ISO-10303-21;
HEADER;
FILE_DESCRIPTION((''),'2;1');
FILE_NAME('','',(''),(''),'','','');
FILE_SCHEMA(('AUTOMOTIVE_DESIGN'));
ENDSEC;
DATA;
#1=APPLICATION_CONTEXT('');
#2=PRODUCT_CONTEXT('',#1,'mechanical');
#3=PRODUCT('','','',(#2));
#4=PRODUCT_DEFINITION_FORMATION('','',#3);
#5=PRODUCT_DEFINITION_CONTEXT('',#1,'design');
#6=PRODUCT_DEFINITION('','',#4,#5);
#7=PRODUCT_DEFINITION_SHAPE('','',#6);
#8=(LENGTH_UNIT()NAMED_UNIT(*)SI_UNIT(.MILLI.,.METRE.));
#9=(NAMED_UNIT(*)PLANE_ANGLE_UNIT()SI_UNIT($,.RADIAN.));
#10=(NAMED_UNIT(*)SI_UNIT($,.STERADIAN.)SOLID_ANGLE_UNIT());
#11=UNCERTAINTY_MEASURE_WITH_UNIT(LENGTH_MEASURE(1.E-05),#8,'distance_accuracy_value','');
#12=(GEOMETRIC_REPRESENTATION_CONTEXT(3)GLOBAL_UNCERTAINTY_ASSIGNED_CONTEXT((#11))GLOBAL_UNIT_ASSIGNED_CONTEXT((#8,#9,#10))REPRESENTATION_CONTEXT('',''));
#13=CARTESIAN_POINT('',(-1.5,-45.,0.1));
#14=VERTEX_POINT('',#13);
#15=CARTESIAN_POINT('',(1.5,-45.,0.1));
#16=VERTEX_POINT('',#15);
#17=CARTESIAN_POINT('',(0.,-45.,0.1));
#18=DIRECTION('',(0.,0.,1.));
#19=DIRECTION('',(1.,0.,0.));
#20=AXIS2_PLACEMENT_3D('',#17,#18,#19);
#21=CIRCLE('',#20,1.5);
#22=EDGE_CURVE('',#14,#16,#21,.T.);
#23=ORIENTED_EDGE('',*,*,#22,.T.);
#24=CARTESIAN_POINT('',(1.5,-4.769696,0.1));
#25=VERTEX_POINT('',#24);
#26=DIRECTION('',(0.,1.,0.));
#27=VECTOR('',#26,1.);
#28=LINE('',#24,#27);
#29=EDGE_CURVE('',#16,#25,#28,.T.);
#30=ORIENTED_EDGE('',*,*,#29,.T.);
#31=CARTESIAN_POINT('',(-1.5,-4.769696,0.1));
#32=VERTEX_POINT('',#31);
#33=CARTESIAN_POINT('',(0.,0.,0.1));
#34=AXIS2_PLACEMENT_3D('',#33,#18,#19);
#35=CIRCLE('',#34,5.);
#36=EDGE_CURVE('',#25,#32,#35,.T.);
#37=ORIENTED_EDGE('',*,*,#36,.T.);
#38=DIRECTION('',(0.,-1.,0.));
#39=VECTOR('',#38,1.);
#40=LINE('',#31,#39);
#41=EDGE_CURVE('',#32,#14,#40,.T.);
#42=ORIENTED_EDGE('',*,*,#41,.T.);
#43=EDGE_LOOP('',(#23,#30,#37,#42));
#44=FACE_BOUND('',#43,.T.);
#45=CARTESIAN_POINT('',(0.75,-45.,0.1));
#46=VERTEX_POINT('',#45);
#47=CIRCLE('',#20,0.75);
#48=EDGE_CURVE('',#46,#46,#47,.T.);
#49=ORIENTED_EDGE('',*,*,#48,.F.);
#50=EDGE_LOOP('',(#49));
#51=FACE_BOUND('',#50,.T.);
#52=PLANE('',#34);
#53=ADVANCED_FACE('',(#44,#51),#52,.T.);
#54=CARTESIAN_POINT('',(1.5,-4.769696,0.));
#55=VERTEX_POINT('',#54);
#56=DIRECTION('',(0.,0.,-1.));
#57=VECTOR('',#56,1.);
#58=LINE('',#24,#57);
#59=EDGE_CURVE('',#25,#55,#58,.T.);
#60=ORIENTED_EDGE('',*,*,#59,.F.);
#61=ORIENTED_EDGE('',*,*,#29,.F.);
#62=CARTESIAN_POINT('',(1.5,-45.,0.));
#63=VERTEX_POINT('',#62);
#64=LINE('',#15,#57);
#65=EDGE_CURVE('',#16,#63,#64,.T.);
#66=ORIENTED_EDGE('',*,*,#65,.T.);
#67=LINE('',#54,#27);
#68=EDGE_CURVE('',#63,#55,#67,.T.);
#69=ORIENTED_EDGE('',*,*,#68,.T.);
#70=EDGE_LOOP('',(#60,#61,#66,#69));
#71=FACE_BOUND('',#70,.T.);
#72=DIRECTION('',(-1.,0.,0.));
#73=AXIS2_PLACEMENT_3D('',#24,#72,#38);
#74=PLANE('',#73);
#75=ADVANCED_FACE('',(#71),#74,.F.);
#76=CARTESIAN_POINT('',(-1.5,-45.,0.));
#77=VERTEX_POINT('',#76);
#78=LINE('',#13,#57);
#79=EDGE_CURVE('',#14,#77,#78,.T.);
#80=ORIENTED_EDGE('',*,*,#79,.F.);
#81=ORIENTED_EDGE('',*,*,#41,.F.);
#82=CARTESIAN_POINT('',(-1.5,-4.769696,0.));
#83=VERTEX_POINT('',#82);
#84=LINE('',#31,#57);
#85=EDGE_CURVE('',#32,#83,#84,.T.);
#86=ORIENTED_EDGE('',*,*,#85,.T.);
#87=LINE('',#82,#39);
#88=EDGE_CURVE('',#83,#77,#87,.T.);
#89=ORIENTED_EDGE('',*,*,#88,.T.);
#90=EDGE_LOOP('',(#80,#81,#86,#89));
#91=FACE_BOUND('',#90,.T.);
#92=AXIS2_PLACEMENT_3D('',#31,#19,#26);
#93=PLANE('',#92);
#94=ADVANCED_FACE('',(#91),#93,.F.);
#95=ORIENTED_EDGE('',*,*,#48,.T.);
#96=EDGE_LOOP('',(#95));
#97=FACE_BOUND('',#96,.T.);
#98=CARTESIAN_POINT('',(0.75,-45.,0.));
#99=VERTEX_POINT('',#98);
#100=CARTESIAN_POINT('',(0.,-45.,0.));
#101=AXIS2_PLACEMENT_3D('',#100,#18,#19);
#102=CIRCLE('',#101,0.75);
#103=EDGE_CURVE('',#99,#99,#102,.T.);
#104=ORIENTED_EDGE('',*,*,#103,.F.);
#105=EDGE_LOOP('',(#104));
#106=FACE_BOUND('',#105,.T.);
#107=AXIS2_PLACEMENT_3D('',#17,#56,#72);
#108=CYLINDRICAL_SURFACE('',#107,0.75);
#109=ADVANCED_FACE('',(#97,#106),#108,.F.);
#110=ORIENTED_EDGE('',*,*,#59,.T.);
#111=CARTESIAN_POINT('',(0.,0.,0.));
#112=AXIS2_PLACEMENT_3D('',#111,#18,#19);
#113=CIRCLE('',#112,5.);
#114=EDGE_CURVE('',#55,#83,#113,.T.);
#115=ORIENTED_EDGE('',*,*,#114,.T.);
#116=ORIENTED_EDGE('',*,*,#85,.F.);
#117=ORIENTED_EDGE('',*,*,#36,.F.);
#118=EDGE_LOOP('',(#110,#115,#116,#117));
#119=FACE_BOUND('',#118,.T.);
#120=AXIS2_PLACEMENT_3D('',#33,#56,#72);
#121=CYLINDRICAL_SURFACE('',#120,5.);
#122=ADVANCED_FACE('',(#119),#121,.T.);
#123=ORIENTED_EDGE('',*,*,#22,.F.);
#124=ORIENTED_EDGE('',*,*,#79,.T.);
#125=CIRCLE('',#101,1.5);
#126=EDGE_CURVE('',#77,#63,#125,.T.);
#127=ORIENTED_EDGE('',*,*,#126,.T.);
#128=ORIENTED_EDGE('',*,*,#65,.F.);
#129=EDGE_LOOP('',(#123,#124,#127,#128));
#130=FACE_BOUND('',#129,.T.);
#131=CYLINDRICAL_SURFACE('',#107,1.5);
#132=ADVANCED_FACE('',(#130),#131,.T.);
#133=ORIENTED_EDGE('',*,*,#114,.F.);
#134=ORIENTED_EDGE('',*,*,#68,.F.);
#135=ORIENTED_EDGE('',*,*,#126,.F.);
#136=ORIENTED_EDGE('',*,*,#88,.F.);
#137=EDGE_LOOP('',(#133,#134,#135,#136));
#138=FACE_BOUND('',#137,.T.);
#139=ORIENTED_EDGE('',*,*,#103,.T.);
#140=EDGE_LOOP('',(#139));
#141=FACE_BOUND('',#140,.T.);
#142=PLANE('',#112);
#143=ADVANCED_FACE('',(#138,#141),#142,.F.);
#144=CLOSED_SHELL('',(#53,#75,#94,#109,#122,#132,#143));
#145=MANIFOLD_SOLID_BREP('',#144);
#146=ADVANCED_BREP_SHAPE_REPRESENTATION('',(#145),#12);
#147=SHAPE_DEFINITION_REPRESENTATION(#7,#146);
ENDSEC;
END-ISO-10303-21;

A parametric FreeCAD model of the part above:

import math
import FreeCAD as App
import Part
import Sketcher
from FreeCAD import Vector
Q = App.Units.Quantity

doc = App.newDocument("Part")
body = doc.addObject("PartDesign::Body", "Body")

sketch1 = body.newObject("Sketcher::SketchObject", "Sketch")
sketch1.AttachmentSupport = (doc.getObject("XY_Plane"), [""])
sketch1.MapMode = "FlatFace"
sketch1.addGeometry(Part.LineSegment(Vector(1.5, -45, 0), Vector(1.5, -4.8, 0)), False)
sketch1.addGeometry(Part.ArcOfCircle(Part.Circle(Vector(0, 0, 0), Vector(0, 0, 1), 5), math.radians(-73), math.radians(253)), False)
sketch1.addGeometry(Part.LineSegment(Vector(-1.5, -4.8, 0), Vector(-1.5, -45, 0)), False)
sketch1.addGeometry(Part.ArcOfCircle(Part.Circle(Vector(0, -45, 0), Vector(0, 0, 1), 1.5), math.radians(180), math.radians(360)), False)
sketch1.addGeometry(Part.Circle(Vector(0, -45, 0), Vector(0, 0, 1), 0.8), False)
sketch1.addConstraint(Sketcher.Constraint("Coincident", 0, 2, 1, 1))
sketch1.addConstraint(Sketcher.Constraint("Coincident", 1, 2, 2, 1))
sketch1.addConstraint(Sketcher.Constraint("Tangent", 2, 2, 3, 1))
sketch1.addConstraint(Sketcher.Constraint("Tangent", 3, 2, 0, 1))
sketch1.addConstraint(Sketcher.Constraint("Vertical", 0))
sketch1.addConstraint(Sketcher.Constraint("Vertical", 2))
sketch1.addConstraint(Sketcher.Constraint("Coincident", 1, 3, -1, 1))
sketch1.addConstraint(Sketcher.Constraint("Coincident", 4, 3, 3, 3))
sketch1.addConstraint(Sketcher.Constraint("PointOnObject", 3, 3, -2))
sketch1.addConstraint(Sketcher.Constraint("Radius", 1, Q("5 mm")))
sketch1.addConstraint(Sketcher.Constraint("Diameter", 4, Q("1.5 mm")))
sketch1.addConstraint(Sketcher.Constraint("Radius", 3, Q("1.5 mm")))
sketch1.addConstraint(Sketcher.Constraint("DistanceY", 3, 3, -1, 1, Q("45 mm")))
pad1 = body.newObject("PartDesign::Pad", "Pad")
pad1.Profile = sketch1
pad1.Length = 0.1

doc.recompute()
